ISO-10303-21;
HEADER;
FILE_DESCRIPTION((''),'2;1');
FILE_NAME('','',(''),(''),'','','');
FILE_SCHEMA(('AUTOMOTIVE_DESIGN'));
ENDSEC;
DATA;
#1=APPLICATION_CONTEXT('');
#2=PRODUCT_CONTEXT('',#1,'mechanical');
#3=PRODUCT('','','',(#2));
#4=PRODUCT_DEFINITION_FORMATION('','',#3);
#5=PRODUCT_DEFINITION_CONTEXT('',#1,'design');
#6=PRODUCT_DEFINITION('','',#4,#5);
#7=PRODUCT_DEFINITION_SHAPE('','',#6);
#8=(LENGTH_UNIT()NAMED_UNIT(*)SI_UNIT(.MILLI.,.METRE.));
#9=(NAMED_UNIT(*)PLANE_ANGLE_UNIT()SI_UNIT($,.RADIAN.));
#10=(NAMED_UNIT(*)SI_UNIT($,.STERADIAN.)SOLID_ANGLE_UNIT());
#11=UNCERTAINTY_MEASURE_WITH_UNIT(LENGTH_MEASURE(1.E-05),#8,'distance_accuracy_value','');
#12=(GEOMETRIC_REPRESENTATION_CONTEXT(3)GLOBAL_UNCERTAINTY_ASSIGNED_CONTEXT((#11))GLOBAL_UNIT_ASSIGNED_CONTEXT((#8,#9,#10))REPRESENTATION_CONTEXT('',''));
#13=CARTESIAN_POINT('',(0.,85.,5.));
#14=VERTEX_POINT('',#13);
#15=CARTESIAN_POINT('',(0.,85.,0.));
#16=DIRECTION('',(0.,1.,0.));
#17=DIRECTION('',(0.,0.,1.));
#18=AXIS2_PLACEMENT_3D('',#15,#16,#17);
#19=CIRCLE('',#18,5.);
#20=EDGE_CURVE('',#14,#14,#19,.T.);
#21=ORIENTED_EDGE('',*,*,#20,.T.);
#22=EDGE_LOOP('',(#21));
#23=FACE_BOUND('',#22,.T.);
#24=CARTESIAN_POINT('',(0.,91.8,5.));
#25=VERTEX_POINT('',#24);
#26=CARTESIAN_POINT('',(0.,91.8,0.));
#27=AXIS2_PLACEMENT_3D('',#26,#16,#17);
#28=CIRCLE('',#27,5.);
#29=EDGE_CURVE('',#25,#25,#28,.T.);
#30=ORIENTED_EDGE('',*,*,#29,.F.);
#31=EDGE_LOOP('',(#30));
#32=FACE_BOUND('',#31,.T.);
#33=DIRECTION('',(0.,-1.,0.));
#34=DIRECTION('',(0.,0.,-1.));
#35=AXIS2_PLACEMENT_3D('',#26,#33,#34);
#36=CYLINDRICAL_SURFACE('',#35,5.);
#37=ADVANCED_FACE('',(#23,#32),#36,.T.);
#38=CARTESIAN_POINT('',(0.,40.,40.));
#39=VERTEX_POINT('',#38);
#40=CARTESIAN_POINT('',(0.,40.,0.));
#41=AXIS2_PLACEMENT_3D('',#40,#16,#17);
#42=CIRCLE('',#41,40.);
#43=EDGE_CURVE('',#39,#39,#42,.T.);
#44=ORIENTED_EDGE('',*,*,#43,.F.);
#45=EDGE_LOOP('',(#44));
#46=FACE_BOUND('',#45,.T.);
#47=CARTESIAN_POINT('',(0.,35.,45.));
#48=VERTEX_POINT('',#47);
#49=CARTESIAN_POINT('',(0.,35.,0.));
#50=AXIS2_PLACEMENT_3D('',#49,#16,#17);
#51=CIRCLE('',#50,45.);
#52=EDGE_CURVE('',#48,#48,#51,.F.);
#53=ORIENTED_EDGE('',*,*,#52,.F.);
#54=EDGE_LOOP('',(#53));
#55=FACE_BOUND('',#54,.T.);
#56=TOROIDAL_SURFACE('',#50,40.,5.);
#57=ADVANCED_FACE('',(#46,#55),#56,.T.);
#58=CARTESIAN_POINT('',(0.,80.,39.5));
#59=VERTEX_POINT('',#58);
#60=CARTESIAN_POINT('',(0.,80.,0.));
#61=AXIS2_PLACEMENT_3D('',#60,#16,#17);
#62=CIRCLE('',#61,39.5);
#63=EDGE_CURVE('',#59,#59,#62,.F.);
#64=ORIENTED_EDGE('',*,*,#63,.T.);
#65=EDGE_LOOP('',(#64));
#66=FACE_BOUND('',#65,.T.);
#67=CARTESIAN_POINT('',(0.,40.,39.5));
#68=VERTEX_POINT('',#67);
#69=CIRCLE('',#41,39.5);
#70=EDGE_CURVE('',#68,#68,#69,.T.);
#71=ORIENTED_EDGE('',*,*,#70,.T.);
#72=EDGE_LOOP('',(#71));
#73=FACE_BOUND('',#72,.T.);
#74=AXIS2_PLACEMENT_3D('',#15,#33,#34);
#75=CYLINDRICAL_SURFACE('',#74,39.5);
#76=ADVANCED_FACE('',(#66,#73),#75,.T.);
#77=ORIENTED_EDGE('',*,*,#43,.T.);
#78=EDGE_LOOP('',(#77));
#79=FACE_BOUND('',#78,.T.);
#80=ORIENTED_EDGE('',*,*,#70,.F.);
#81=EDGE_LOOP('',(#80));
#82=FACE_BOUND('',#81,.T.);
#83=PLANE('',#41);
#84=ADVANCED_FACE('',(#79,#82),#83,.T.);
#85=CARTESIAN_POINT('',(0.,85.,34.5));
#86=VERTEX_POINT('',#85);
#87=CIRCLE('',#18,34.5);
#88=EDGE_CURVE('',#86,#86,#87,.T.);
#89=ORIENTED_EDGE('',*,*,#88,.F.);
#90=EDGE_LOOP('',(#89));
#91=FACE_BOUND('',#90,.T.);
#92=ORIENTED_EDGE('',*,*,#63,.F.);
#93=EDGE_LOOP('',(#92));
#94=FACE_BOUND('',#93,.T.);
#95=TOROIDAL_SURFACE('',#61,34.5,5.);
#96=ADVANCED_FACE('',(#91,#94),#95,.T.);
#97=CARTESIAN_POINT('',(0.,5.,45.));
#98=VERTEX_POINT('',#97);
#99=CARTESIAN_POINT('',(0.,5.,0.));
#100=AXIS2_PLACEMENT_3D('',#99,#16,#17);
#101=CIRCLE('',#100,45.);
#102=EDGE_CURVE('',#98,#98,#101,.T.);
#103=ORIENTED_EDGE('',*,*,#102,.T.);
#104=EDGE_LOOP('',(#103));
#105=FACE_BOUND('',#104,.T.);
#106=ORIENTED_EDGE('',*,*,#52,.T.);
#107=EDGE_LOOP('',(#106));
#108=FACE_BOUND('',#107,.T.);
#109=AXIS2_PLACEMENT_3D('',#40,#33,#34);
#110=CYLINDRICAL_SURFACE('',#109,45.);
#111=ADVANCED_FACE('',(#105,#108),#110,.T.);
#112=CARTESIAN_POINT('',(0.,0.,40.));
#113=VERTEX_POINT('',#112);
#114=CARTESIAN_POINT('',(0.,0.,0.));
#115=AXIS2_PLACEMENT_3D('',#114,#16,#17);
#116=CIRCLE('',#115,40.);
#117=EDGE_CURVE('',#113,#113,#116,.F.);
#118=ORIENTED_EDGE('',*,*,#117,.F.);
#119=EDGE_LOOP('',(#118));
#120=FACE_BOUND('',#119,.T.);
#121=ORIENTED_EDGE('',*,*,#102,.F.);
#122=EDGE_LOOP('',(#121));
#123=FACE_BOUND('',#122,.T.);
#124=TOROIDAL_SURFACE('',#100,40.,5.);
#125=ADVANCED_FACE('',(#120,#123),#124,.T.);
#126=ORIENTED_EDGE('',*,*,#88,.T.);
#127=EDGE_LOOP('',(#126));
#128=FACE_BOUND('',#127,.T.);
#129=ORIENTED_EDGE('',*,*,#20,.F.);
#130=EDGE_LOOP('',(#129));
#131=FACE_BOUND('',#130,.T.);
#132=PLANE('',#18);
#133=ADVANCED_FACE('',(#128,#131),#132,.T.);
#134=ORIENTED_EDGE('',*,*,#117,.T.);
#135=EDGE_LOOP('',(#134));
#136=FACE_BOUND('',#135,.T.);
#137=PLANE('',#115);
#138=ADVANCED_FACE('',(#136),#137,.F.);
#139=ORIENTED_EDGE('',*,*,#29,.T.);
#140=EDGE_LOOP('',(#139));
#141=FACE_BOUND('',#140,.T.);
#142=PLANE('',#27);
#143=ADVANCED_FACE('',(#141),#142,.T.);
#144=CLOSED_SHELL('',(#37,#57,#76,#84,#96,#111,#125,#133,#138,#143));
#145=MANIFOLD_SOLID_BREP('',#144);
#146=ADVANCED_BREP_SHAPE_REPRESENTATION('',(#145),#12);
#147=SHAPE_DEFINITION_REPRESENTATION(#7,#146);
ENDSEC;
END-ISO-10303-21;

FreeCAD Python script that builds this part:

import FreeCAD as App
import Part
import Sketcher


def edges_at(feature, points):
    """Names of the edges that pass closest to the given points."""
    edges = feature.Shape.Edges
    near = lambda p: min(range(len(edges)), key=lambda i: edges[i].distToShape(Part.Vertex(*p))[0])
    return sorted({f"Edge{near(p) + 1}" for p in points})

doc = App.newDocument("Part")
body = doc.addObject("PartDesign::Body", "Body")

# Sketch on XZ plane
sketch1 = doc.addObject("Sketcher::SketchObject", "Sketch")
body.addObject(sketch1)
sketch1.AttachmentSupport = (doc.XZ_Plane, [""])
sketch1.MapMode = "FlatFace"
sketch1.addGeometry(Part.Circle(App.Vector(0, 0, 0), App.Vector(0, 0, 1), 45), False)
sketch1.addConstraint(Sketcher.Constraint("Coincident", 0, 3, -1, 1))
sketch1.addConstraint(Sketcher.Constraint("Diameter", 0, 90.0))
pad1 = doc.addObject("PartDesign::Pad", "Pad")
body.addObject(pad1)
pad1.Profile = sketch1
pad1.Length = 40
pad1.Reversed = True

# Sketch on XZ plane
sketch2 = doc.addObject("Sketcher::SketchObject", "Sketch001")
body.addObject(sketch2)
sketch2.AttachmentSupport = (doc.XZ_Plane, [""])
sketch2.MapMode = "FlatFace"
sketch2.AttachmentOffset = App.Placement(App.Vector(0, 0, -40), App.Rotation())
sketch2.addGeometry(Part.Circle(App.Vector(0, 0, 0), App.Vector(0, 0, 1), 39.5), False)
sketch2.addConstraint(Sketcher.Constraint("Coincident", 0, 3, -1, 1))
sketch2.addConstraint(Sketcher.Constraint("Diameter", 0, 79.0))
pad2 = doc.addObject("PartDesign::Pad", "Pad001")
body.addObject(pad2)
pad2.Profile = sketch2
pad2.Length = 45
pad2.Reversed = True

# Sketch on XZ plane
sketch3 = doc.addObject("Sketcher::SketchObject", "Sketch002")
body.addObject(sketch3)
sketch3.AttachmentSupport = (doc.XZ_Plane, [""])
sketch3.MapMode = "FlatFace"
sketch3.AttachmentOffset = App.Placement(App.Vector(0, 0, -85), App.Rotation())
sketch3.addGeometry(Part.Circle(App.Vector(0, 0, 0), App.Vector(0, 0, 1), 5), False)
sketch3.addConstraint(Sketcher.Constraint("Coincident", 0, 3, -1, 1))
sketch3.addConstraint(Sketcher.Constraint("Diameter", 0, 10.0))
pad3 = doc.addObject("PartDesign::Pad", "Pad002")
body.addObject(pad3)
pad3.Profile = sketch3
pad3.Length = 6.8
pad3.Reversed = True
doc.recompute()

fillet = doc.addObject("PartDesign::Fillet", "Fillet")
body.addObject(fillet)
fillet.Base = (pad3, edges_at(pad3, [(-45, 0, 0), (-45, 40, 0), (-39.5, 85, 0)]))
fillet.Radius = 5

doc.recompute()
